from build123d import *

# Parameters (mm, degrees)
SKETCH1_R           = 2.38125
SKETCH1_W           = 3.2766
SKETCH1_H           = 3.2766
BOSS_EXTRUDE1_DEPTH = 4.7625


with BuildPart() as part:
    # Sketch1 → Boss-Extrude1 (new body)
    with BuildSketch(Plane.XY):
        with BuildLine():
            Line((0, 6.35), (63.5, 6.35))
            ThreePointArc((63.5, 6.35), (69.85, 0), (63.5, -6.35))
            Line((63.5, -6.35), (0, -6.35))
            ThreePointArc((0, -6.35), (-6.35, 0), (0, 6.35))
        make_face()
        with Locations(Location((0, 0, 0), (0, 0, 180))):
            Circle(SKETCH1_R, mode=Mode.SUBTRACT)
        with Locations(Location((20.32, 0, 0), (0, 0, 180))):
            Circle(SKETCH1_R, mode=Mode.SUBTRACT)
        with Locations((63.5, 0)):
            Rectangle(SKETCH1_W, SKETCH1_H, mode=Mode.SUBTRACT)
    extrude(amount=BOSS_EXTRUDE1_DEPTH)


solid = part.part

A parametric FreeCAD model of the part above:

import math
import FreeCAD as App
import Part
import Sketcher

V = App.Vector
Q = App.Units.Quantity


def add_polygon(sketch, points):
    """Adds a closed chain of lines whose ends are joined by coincident constraints."""
    first, n = sketch.GeometryCount, len(points)
    for a, b in zip(points, points[1:] + points[:1]):
        sketch.addGeometry(Part.LineSegment(App.Vector(*a, 0), App.Vector(*b, 0)), False)
    for i in range(n):
        sketch.addConstraint(Sketcher.Constraint("Coincident", first + i, 2, first + (i + 1) % n, 1))

doc = App.newDocument("Part")
body = doc.addObject("PartDesign::Body", "Body")

sketch1 = body.newObject("Sketcher::SketchObject", "Sketch")
sketch1.AttachmentSupport = (doc.getObject("XY_Plane"), [""])
sketch1.MapMode = "FlatFace"
sketch1.addGeometry(Part.LineSegment(V(63.5, 6.3, 0), V(0, 6.3, 0)), False)
sketch1.addGeometry(Part.ArcOfCircle(Part.Circle(V(0, 0, 0), V(0, 0, 1), 6.3), math.radians(90), math.radians(270)), False)
sketch1.addGeometry(Part.LineSegment(V(0, -6.3, 0), V(63.5, -6.3, 0)), False)
sketch1.addGeometry(Part.ArcOfCircle(Part.Circle(V(63.5, 0, 0), V(0, 0, 1), 6.3), math.radians(-90), math.radians(90)), False)
add_polygon(sketch1, [(61.9, -1.6), (61.9, 1.6), (65.1, 1.6), (65.1, -1.6)])
sketch1.addGeometry(Part.Circle(V(20.3, 0, 0), V(0, 0, 1), 2.4), False)
sketch1.addGeometry(Part.Circle(V(0, 0, 0), V(0, 0, 1), 2.4), False)
sketch1.addConstraint(Sketcher.Constraint("Tangent", 0, 2, 1, 1))
sketch1.addConstraint(Sketcher.Constraint("Tangent", 1, 2, 2, 1))
sketch1.addConstraint(Sketcher.Constraint("Tangent", 2, 2, 3, 1))
sketch1.addConstraint(Sketcher.Constraint("Tangent", 3, 2, 0, 1))
sketch1.addConstraint(Sketcher.Constraint("Horizontal", 0))
sketch1.addConstraint(Sketcher.Constraint("Horizontal", 2))
sketch1.addConstraint(Sketcher.Constraint("Vertical", 4))
sketch1.addConstraint(Sketcher.Constraint("Horizontal", 5))
sketch1.addConstraint(Sketcher.Constraint("Vertical", 6))
sketch1.addConstraint(Sketcher.Constraint("Horizontal", 7))
sketch1.addConstraint(Sketcher.Constraint("Coincident", 1, 3, -1, 1))
sketch1.addConstraint(Sketcher.Constraint("Coincident", 9, 3, -1, 1))
sketch1.addConstraint(Sketcher.Constraint("Equal", 8, 9))
sketch1.addConstraint(Sketcher.Constraint("PointOnObject", 8, 3, -1))
sketch1.addConstraint(Sketcher.Constraint("Equal", 7, 4))
sketch1.addConstraint(Sketcher.Constraint("Radius", 1, Q("0.25 in")))
sketch1.addConstraint(Sketcher.Constraint("Diameter", 8, Q("0.1875 in")))
sketch1.addConstraint(Sketcher.Constraint("DistanceX", 0, 2, 0, 1, Q("2.5 in")))
sketch1.addConstraint(Sketcher.Constraint("DistanceX", -1, 1, 8, 3, Q("0.8 in")))
sketch1.addConstraint(Sketcher.Constraint("DistanceX", 5, 1, 5, 2, Q("0.129 in")))
sketch1.addConstraint(Sketcher.Constraint("DistanceX", -1, 1, 4, 2, Q("2.4355 in")))
sketch1.addConstraint(Sketcher.Constraint("DistanceY", -1, 1, 4, 2, Q("0.0645 in")))
pad1 = body.newObject("PartDesign::Pad", "Pad")
pad1.Profile = sketch1
pad1.Length = Q("0.1875 in")

doc.recompute()
